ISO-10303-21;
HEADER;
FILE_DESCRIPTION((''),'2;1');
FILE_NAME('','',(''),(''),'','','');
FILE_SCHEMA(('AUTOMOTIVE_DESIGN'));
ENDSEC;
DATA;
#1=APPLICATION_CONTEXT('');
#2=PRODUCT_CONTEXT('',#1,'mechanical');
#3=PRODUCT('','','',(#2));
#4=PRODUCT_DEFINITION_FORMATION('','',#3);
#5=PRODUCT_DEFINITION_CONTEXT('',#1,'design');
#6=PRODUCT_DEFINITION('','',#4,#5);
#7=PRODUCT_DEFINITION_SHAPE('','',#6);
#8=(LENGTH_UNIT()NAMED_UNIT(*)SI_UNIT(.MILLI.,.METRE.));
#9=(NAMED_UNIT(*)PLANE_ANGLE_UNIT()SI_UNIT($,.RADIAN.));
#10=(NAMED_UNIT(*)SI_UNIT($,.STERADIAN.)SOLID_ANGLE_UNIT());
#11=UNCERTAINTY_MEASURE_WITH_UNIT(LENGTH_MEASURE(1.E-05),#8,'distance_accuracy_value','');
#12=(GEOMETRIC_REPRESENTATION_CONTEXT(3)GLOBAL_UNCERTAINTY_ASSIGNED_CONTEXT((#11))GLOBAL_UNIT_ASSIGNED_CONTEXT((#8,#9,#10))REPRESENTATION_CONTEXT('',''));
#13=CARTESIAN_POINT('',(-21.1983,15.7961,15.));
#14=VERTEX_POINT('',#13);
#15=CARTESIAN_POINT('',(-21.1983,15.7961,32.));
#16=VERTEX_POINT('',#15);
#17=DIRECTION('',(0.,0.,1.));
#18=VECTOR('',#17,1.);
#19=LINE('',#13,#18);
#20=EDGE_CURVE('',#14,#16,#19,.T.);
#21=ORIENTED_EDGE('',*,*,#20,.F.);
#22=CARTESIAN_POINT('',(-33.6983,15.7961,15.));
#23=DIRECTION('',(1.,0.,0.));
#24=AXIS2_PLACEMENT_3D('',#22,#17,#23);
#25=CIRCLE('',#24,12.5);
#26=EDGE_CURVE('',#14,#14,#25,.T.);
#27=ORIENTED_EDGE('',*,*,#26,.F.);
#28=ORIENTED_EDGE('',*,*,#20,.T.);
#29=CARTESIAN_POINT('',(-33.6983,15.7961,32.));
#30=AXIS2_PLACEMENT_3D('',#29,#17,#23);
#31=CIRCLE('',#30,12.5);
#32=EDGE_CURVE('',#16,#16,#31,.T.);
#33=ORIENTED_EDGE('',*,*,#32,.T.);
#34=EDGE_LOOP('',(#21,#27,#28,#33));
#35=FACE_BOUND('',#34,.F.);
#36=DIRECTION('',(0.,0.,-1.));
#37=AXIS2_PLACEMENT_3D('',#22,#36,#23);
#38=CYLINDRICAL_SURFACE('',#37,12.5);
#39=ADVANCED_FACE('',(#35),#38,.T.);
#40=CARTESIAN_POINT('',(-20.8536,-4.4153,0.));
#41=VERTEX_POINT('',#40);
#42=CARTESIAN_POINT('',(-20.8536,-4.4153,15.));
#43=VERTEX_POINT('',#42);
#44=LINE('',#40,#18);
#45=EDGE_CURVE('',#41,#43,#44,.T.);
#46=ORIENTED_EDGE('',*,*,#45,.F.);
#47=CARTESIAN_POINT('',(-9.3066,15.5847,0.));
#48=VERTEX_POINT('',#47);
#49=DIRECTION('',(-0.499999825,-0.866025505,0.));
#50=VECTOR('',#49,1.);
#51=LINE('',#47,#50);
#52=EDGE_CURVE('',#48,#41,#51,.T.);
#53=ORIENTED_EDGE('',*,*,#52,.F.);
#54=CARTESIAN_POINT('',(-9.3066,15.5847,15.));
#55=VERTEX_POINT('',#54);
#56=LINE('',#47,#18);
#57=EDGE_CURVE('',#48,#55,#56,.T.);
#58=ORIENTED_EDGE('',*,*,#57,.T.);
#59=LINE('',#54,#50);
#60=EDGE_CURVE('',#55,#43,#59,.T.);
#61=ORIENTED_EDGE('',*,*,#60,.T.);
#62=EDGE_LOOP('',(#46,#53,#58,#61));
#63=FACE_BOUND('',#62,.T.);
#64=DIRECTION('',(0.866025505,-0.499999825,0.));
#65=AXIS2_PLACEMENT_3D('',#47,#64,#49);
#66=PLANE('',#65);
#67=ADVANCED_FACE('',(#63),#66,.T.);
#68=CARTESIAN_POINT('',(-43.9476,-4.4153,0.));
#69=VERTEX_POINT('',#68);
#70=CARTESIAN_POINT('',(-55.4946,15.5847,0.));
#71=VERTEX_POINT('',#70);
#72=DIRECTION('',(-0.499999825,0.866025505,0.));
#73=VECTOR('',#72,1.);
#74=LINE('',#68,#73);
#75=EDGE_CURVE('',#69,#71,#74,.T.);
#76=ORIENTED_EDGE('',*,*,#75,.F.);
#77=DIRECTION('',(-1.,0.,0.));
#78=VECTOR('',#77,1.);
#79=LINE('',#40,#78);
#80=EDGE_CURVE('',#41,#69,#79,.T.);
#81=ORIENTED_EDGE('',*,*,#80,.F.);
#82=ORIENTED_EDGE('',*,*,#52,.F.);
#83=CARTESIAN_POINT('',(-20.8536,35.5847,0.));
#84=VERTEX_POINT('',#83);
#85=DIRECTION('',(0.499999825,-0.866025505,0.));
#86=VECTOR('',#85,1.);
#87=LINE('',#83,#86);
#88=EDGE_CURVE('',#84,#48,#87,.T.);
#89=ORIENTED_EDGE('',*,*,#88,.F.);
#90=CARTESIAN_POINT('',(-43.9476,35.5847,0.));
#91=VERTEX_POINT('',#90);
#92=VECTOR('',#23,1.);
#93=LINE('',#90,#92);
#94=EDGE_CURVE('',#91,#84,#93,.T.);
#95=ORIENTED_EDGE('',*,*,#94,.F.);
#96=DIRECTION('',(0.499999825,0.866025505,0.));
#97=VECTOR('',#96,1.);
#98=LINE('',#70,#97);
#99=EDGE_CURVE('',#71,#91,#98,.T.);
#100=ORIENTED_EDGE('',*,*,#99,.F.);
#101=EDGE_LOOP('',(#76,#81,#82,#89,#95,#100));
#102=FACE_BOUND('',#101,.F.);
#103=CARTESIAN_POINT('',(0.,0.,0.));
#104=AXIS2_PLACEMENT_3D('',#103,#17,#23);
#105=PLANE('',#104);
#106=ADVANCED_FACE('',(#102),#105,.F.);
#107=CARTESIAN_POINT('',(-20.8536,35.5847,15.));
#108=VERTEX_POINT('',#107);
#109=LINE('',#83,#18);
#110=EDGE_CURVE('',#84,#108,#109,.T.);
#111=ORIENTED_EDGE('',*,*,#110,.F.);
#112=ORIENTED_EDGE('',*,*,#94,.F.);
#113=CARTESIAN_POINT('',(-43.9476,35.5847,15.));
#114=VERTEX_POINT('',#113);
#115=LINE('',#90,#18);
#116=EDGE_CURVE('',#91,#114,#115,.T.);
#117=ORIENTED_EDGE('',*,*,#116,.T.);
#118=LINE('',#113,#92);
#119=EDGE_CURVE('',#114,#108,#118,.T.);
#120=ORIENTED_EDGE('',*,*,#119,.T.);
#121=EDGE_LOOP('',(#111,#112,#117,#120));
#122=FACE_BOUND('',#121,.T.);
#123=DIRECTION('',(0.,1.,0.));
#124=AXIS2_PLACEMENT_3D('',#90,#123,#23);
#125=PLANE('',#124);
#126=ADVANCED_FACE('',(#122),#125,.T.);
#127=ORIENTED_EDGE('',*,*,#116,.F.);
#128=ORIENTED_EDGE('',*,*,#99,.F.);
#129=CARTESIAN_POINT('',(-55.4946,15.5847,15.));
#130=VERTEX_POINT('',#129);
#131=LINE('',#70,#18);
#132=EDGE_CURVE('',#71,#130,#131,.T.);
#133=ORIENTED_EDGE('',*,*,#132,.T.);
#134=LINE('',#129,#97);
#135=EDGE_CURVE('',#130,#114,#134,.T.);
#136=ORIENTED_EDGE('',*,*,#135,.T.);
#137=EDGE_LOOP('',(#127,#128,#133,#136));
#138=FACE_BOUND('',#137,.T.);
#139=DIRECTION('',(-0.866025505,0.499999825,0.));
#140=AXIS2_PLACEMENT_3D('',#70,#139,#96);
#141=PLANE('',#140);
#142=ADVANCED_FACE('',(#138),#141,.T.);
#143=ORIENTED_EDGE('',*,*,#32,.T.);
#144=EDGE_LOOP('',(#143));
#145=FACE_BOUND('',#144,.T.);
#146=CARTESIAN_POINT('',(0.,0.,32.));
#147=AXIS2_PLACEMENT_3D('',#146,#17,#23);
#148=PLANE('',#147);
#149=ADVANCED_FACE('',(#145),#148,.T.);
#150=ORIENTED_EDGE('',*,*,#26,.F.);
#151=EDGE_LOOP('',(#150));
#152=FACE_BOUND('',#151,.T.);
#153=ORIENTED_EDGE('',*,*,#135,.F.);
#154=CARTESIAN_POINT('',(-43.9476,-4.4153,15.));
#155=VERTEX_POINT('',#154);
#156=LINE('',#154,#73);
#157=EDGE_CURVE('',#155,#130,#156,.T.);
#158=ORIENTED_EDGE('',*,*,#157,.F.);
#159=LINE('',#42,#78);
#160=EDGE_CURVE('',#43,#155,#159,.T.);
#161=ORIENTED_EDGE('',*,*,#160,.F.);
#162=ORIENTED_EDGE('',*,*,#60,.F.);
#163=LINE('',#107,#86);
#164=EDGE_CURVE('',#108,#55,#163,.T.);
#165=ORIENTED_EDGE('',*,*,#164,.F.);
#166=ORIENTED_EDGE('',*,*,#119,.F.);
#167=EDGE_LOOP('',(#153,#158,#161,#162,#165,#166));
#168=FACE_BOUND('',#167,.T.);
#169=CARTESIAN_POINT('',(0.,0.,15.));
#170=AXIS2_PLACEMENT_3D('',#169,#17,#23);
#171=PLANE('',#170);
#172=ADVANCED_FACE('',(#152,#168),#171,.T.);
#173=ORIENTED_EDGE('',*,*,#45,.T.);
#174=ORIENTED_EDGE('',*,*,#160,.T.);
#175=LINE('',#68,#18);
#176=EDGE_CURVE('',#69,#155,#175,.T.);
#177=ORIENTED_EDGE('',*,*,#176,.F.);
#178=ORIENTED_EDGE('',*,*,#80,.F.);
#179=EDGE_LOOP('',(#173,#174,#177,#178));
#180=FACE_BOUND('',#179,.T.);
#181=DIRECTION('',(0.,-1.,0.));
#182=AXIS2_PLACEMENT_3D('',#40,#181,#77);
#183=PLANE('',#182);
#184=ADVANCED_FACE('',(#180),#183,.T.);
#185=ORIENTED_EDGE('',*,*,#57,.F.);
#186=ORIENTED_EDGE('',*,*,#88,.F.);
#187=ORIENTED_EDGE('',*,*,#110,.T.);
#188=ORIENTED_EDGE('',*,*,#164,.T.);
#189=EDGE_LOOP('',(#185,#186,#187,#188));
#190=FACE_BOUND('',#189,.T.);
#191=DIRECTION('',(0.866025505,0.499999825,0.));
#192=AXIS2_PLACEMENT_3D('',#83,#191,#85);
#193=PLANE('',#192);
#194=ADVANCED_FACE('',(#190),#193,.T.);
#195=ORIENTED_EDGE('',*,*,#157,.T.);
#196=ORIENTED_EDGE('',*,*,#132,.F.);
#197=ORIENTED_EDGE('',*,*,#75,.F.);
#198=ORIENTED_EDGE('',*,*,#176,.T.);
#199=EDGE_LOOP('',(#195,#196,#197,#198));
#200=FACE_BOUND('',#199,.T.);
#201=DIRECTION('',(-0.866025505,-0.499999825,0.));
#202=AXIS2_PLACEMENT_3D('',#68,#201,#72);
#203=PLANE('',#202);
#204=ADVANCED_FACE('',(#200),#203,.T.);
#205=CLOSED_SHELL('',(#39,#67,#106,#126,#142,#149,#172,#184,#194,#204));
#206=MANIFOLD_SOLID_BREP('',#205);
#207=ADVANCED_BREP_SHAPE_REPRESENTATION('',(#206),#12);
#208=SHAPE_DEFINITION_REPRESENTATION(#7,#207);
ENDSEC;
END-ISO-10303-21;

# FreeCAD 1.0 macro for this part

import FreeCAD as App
import Part
import Sketcher
from FreeCAD import Vector
Q = App.Units.Quantity

doc = App.newDocument("Part")
body = doc.addObject("PartDesign::Body", "Body")

# Sketch on XY plane
sketch1 = body.newObject("Sketcher::SketchObject", "Sketch")
sketch1.AttachmentSupport = (doc.getObject("XY_Plane"), [""])
sketch1.MapMode = "FlatFace"
sketch1.addGeometry([
    Part.LineSegment(Vector(-21, -4, 0), Vector(-9, 16, 0)),  # 0
    Part.LineSegment(Vector(-9, 16, 0), Vector(-21, 36, 0)),  # 1
    Part.LineSegment(Vector(-21, 36, 0), Vector(-44, 36, 0)),  # 2
    Part.LineSegment(Vector(-44, 36, 0), Vector(-55, 16, 0)),  # 3
    Part.LineSegment(Vector(-55, 16, 0), Vector(-44, -4, 0)),  # 4
    Part.LineSegment(Vector(-44, -4, 0), Vector(-21, -4, 0)),  # 5
], False)
sketch1.addConstraint([
    Sketcher.Constraint("Coincident", 0, 2, 1, 1),
    Sketcher.Constraint("Coincident", 1, 2, 2, 1),
    Sketcher.Constraint("Coincident", 2, 2, 3, 1),
    Sketcher.Constraint("Coincident", 3, 2, 4, 1),
    Sketcher.Constraint("Coincident", 4, 2, 5, 1),
    Sketcher.Constraint("Coincident", 5, 2, 0, 1),
    Sketcher.Constraint("Horizontal", 2),
    Sketcher.Constraint("Horizontal", 5),
    Sketcher.Constraint("Parallel", 0, 3),
    Sketcher.Constraint("Parallel", 1, 4),
    Sketcher.Constraint("Horizontal", 0, 2, 3, 2),
    Sketcher.Constraint("Vertical", 2, 2, 4, 2),
    Sketcher.Constraint("Vertical", 1, 2, 5, 2),
    Sketcher.Constraint("DistanceY", 0, 2, 1, 2, 20.0),
    Sketcher.Constraint("Angle", 0, Q("60 deg")),
    Sketcher.Constraint("DistanceX", 2, 2, 2, 1, 23.094),
    Sketcher.Constraint("DistanceX", 0, 2, -1, 1, 9.3066),
    Sketcher.Constraint("DistanceY", -1, 1, 0, 2, 15.5847),
])
pad1 = body.newObject("PartDesign::Pad", "Pad")
pad1.Profile = sketch1
pad1.Length = 15

# Sketch on XY plane
sketch2 = body.newObject("Sketcher::SketchObject", "Sketch001")
sketch2.AttachmentSupport = (doc.getObject("XY_Plane"), [""])
sketch2.MapMode = "FlatFace"
sketch2.AttachmentOffset = App.Placement(Vector(0, 0, 15), App.Rotation())
sketch2.addGeometry(Part.Circle(Vector(-34, 16, 0), Vector(0, 0, 1), 12), False)
sketch2.addConstraint([
    Sketcher.Constraint("Diameter", 0, 25.0),
    Sketcher.Constraint("DistanceY", -1, 1, 0, 3, 15.796),
    Sketcher.Constraint("DistanceX", 0, 3, -1, 1, 33.6983),
])
pad2 = body.newObject("PartDesign::Pad", "Pad001")
pad2.Profile = sketch2
pad2.Length = 17

doc.recompute()
